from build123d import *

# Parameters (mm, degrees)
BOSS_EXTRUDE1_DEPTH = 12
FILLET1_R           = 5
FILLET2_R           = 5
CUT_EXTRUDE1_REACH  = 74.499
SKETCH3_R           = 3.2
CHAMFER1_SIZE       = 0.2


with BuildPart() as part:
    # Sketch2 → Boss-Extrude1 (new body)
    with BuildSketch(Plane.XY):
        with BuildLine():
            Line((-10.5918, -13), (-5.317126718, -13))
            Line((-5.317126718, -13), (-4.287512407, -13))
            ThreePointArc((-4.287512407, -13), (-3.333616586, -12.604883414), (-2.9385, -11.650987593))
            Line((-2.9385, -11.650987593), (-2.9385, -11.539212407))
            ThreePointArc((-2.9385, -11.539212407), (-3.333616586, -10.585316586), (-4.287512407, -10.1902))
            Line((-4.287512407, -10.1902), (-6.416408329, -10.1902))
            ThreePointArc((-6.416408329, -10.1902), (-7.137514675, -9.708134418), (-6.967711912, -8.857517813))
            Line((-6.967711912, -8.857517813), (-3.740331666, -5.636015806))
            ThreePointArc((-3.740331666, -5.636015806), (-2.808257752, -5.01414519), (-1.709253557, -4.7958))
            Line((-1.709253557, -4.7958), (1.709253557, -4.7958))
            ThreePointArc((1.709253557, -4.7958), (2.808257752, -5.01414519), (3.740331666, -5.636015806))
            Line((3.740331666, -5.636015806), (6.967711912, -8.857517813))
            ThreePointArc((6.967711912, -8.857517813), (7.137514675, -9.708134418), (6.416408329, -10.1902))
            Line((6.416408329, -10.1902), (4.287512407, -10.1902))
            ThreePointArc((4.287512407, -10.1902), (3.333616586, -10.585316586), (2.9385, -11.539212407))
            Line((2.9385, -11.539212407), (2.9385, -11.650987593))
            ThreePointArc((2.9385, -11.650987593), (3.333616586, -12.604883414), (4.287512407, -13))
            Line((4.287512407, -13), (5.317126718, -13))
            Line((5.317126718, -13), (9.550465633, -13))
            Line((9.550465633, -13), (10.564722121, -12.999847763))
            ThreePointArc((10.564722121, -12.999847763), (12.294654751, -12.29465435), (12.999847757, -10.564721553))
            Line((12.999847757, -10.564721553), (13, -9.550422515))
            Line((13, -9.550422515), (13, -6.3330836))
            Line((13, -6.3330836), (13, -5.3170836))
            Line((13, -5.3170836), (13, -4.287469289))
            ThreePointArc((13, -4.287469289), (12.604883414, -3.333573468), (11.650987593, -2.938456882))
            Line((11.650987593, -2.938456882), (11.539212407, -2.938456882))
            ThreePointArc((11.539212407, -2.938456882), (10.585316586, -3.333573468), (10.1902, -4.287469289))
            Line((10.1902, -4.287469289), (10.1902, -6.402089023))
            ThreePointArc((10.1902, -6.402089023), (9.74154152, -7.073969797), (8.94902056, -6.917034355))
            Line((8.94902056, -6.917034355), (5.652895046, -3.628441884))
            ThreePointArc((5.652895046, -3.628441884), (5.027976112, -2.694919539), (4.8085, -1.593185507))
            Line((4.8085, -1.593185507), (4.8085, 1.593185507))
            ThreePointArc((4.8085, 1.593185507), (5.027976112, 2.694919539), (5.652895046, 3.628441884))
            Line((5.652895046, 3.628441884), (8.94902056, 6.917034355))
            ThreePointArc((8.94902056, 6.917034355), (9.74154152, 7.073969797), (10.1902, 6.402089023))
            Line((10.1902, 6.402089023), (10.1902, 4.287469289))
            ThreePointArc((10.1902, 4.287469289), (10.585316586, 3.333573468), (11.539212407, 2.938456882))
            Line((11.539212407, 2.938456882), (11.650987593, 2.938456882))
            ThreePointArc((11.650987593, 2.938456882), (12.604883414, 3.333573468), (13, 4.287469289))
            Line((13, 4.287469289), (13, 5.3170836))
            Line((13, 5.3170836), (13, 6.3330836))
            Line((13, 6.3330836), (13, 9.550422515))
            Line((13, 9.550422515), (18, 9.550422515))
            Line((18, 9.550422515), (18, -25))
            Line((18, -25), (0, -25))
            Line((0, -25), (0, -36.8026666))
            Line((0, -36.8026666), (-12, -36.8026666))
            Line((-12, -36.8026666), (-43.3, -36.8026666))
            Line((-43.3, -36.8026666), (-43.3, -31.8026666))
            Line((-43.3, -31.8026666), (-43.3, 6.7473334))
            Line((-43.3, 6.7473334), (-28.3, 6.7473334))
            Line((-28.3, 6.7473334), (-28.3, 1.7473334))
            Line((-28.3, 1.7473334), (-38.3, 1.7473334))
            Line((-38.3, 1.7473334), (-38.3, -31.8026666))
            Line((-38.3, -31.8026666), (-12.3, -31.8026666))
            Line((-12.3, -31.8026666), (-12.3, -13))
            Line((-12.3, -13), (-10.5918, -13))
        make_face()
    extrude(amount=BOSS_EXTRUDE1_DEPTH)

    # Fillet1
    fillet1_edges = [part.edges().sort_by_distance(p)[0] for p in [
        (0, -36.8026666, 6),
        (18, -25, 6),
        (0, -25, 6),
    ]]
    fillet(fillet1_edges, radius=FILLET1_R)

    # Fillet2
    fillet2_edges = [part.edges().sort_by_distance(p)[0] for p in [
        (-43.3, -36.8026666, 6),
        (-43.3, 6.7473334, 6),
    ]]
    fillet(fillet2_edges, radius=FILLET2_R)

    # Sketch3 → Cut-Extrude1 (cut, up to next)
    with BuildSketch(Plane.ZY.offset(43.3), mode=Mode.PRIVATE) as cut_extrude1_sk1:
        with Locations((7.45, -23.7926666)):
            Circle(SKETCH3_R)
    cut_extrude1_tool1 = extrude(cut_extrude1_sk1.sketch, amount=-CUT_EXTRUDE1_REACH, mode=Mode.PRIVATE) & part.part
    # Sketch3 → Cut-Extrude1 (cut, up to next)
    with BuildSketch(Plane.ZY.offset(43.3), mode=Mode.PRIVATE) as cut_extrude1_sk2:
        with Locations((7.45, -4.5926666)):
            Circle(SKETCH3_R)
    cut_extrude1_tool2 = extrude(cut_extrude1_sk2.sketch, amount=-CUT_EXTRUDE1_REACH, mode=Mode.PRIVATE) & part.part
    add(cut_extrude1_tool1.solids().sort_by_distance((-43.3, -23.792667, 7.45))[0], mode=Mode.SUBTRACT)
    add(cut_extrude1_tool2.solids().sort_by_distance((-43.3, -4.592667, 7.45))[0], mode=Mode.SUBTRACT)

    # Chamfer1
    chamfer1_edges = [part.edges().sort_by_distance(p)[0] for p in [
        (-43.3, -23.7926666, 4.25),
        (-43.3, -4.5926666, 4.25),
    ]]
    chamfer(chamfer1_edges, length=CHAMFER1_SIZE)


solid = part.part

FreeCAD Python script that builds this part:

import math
import FreeCAD as App
import Part
import Sketcher
Q = App.Units.Quantity


def edges_at(feature, points):
    """Names of the edges that pass closest to the given points."""
    edges = feature.Shape.Edges
    near = lambda p: min(range(len(edges)), key=lambda i: edges[i].distToShape(Part.Vertex(*p))[0])
    return sorted({f"Edge{near(p) + 1}" for p in points})

doc = App.newDocument("Part")
params = doc.addObject("Spreadsheet::Sheet", "Params")
for row, (alias, value) in enumerate([
    ("sketch1_width", "26 mm"),
    ("sketch1_width2", "10 mm"),
    ("sketch1_width3", "15 mm"),
    ("sketch1_width4", "18 mm"),
    ("sketch1_width5", "5 mm"),
    ("pad1_length", "12 mm"),
    ("fillet_radius", "5 mm"),
    ("fillet2_radius", "5 mm"),
    ("sketch2_diameter", "6.4 mm"),
    ("sketch3_diameter", "6.4 mm"),
    ("chamfer_size", "0.2 mm"),
], start=1):
    params.set(f"A{row}", alias)
    params.set(f"B{row}", "=" + value)
    params.setAlias(f"B{row}", alias)

body = doc.addObject("PartDesign::Body", "Body")

sketch1 = body.newObject("Sketcher::SketchObject", "Sketch")
sketch1.AttachmentSupport = (doc.getObject("XY_Plane"), [""])
sketch1.MapMode = "FlatFace"
sketch1.addGeometry([
    Part.ArcOfCircle(Part.Circle(App.Vector(-4.287512, -11.650988, 0), App.Vector(0, 0, 1), 1.349012), math.radians(-90), math.radians(0)),
    Part.LineSegment(App.Vector(-4.287512, -13, 0), App.Vector(-12.3, -13, 0)),
    Part.LineSegment(App.Vector(-12.3, -13, 0), App.Vector(-12.3, -31.802667, 0)),
    Part.LineSegment(App.Vector(-12.3, -31.802667, 0), App.Vector(-38.3, -31.802667, 0)),
    Part.LineSegment(App.Vector(-38.3, -31.802667, 0), App.Vector(-38.3, 1.747333, 0)),
    Part.LineSegment(App.Vector(-38.3, 1.747333, 0), App.Vector(-28.3, 1.747333, 0)),
    Part.LineSegment(App.Vector(-28.3, 1.747333, 0), App.Vector(-28.3, 6.747333, 0)),
    Part.LineSegment(App.Vector(-28.3, 6.747333, 0), App.Vector(-43.3, 6.747333, 0)),
    Part.LineSegment(App.Vector(-43.3, 6.747333, 0), App.Vector(-43.3, -36.802667, 0)),
    Part.LineSegment(App.Vector(-43.3, -36.802667, 0), App.Vector(0, -36.802667, 0)),
    Part.LineSegment(App.Vector(0, -36.802667, 0), App.Vector(0, -25, 0)),
    Part.LineSegment(App.Vector(0, -25, 0), App.Vector(18, -25, 0)),
    Part.LineSegment(App.Vector(18, -25, 0), App.Vector(18, 9.550423, 0)),
    Part.LineSegment(App.Vector(18, 9.550423, 0), App.Vector(13, 9.550423, 0)),
    Part.LineSegment(App.Vector(13, 9.550423, 0), App.Vector(13, 4.287469, 0)),
    Part.ArcOfCircle(Part.Circle(App.Vector(11.650988, 4.287469, 0), App.Vector(0, 0, 1), 1.349012), math.radians(-90), math.radians(0)),
    Part.LineSegment(App.Vector(11.650988, 2.938457, 0), App.Vector(11.539212, 2.938457, 0)),
    Part.ArcOfCircle(Part.Circle(App.Vector(11.539212, 4.287469, 0), App.Vector(0, 0, 1), 1.349012), math.radians(180), math.radians(270)),
    Part.LineSegment(App.Vector(10.1902, 4.287469, 0), App.Vector(10.1902, 6.402089, 0)),
    Part.ArcOfCircle(Part.Circle(App.Vector(9.462789, 6.402089, 0), App.Vector(0, 0, 1), 0.727411), math.radians(0), math.radians(134.934453)),
    Part.LineSegment(App.Vector(8.949021, 6.917034, 0), App.Vector(5.652895, 3.628442, 0)),
    Part.ArcOfCircle(Part.Circle(App.Vector(7.6835, 1.593186, 0), App.Vector(0, 0, 1), 2.875), math.radians(134.934453), math.radians(180)),
    Part.LineSegment(App.Vector(4.8085, 1.593186, 0), App.Vector(4.8085, -1.593186, 0)),
    Part.ArcOfCircle(Part.Circle(App.Vector(7.6835, -1.593186, 0), App.Vector(0, 0, 1), 2.875), math.radians(-180), math.radians(-134.934453)),
    Part.LineSegment(App.Vector(5.652895, -3.628442, 0), App.Vector(8.949021, -6.917034, 0)),
    Part.ArcOfCircle(Part.Circle(App.Vector(9.462789, -6.402089, 0), App.Vector(0, 0, 1), 0.727411), math.radians(-134.934453), math.radians(0)),
    Part.LineSegment(App.Vector(10.1902, -6.402089, 0), App.Vector(10.1902, -4.287469, 0)),
    Part.ArcOfCircle(Part.Circle(App.Vector(11.539212, -4.287469, 0), App.Vector(0, 0, 1), 1.349012), math.radians(90), math.radians(180)),
    Part.LineSegment(App.Vector(11.539212, -2.938457, 0), App.Vector(11.650988, -2.938457, 0)),
    Part.ArcOfCircle(Part.Circle(App.Vector(11.650988, -4.287469, 0), App.Vector(0, 0, 1), 1.349012), math.radians(0), math.radians(90)),
    Part.LineSegment(App.Vector(13, -4.287469, 0), App.Vector(13, -9.550423, 0)),
    Part.LineSegment(App.Vector(13, -9.550423, 0), App.Vector(12.999848, -10.564722, 0)),
    Part.ArcOfCircle(Part.Circle(App.Vector(10.5918, -10.5918, 0), App.Vector(0, 0, 1), 2.4082), math.radians(-90.644249), math.radians(0.644263)),
    Part.LineSegment(App.Vector(10.564722, -12.999848, 0), App.Vector(9.550466, -13, 0)),
    Part.LineSegment(App.Vector(9.550466, -13, 0), App.Vector(4.287512, -13, 0)),
    Part.ArcOfCircle(Part.Circle(App.Vector(4.287512, -11.650988, 0), App.Vector(0, 0, 1), 1.349012), math.radians(180), math.radians(270)),
    Part.LineSegment(App.Vector(2.9385, -11.650988, 0), App.Vector(2.9385, -11.539212, 0)),
    Part.ArcOfCircle(Part.Circle(App.Vector(4.287512, -11.539212, 0), App.Vector(0, 0, 1), 1.349012), math.radians(90), math.radians(180)),
    Part.LineSegment(App.Vector(4.287512, -10.1902, 0), App.Vector(6.416408, -10.1902, 0)),
    Part.ArcOfCircle(Part.Circle(App.Vector(6.416408, -9.409827, 0), App.Vector(0, 0, 1), 0.780373), math.radians(-90), math.radians(45.052226)),
    Part.LineSegment(App.Vector(6.967712, -8.857518, 0), App.Vector(3.740332, -5.636016, 0)),
    Part.ArcOfCircle(Part.Circle(App.Vector(1.709254, -7.6708, 0), App.Vector(0, 0, 1), 2.875), math.radians(45.052226), math.radians(90)),
    Part.LineSegment(App.Vector(1.709254, -4.7958, 0), App.Vector(-1.709254, -4.7958, 0)),
    Part.ArcOfCircle(Part.Circle(App.Vector(-1.709254, -7.6708, 0), App.Vector(0, 0, 1), 2.875), math.radians(90), math.radians(134.947774)),
    Part.LineSegment(App.Vector(-3.740332, -5.636016, 0), App.Vector(-6.967712, -8.857518, 0)),
    Part.ArcOfCircle(Part.Circle(App.Vector(-6.416408, -9.409827, 0), App.Vector(0, 0, 1), 0.780373), math.radians(134.947774), math.radians(270)),
    Part.LineSegment(App.Vector(-6.416408, -10.1902, 0), App.Vector(-4.287512, -10.1902, 0)),
    Part.ArcOfCircle(Part.Circle(App.Vector(-4.287512, -11.539212, 0), App.Vector(0, 0, 1), 1.349012), math.radians(0), math.radians(90)),
    Part.LineSegment(App.Vector(-2.9385, -11.539212, 0), App.Vector(-2.9385, -11.650988, 0)),
], False)
sketch1.addConstraint([
    Sketcher.Constraint("Tangent", 0, 1, 1, 1),
    Sketcher.Constraint("Coincident", 1, 2, 2, 1),
    Sketcher.Constraint("Coincident", 2, 2, 3, 1),
    Sketcher.Constraint("Coincident", 3, 2, 4, 1),
    Sketcher.Constraint("Coincident", 4, 2, 5, 1),
    Sketcher.Constraint("Coincident", 5, 2, 6, 1),
    Sketcher.Constraint("Coincident", 6, 2, 7, 1),
    Sketcher.Constraint("Coincident", 7, 2, 8, 1),
    Sketcher.Constraint("Coincident", 8, 2, 9, 1),
    Sketcher.Constraint("Coincident", 9, 2, 10, 1),
    Sketcher.Constraint("Coincident", 10, 2, 11, 1),
    Sketcher.Constraint("Coincident", 11, 2, 12, 1),
    Sketcher.Constraint("Coincident", 12, 2, 13, 1),
    Sketcher.Constraint("Coincident", 13, 2, 14, 1),
    Sketcher.Constraint("Tangent", 14, 2, 15, 2),
    Sketcher.Constraint("Tangent", 15, 1, 16, 1),
    Sketcher.Constraint("Tangent", 16, 2, 17, 2),
    Sketcher.Constraint("Tangent", 17, 1, 18, 1),
    Sketcher.Constraint("Tangent", 18, 2, 19, 1),
    Sketcher.Constraint("Tangent", 19, 2, 20, 1),
    Sketcher.Constraint("Tangent", 20, 2, 21, 1),
    Sketcher.Constraint("Tangent", 21, 2, 22, 1),
    Sketcher.Constraint("Tangent", 22, 2, 23, 1),
    Sketcher.Constraint("Tangent", 23, 2, 24, 1),
    Sketcher.Constraint("Tangent", 24, 2, 25, 1),
    Sketcher.Constraint("Tangent", 25, 2, 26, 1),
    Sketcher.Constraint("Tangent", 26, 2, 27, 2),
    Sketcher.Constraint("Tangent", 27, 1, 28, 1),
    Sketcher.Constraint("Tangent", 28, 2, 29, 2),
    Sketcher.Constraint("Tangent", 29, 1, 30, 1),
    Sketcher.Constraint("Coincident", 30, 2, 31, 1),
    Sketcher.Constraint("Coincident", 31, 2, 32, 2),
    Sketcher.Constraint("Coincident", 32, 1, 33, 1),
    Sketcher.Constraint("Coincident", 33, 2, 34, 1),
    Sketcher.Constraint("Tangent", 34, 2, 35, 2),
    Sketcher.Constraint("Tangent", 35, 1, 36, 1),
    Sketcher.Constraint("Tangent", 36, 2, 37, 2),
    Sketcher.Constraint("Tangent", 37, 1, 38, 1),
    Sketcher.Constraint("Tangent", 38, 2, 39, 1),
    Sketcher.Constraint("Tangent", 39, 2, 40, 1),
    Sketcher.Constraint("Tangent", 40, 2, 41, 1),
    Sketcher.Constraint("Tangent", 41, 2, 42, 1),
    Sketcher.Constraint("Tangent", 42, 2, 43, 1),
    Sketcher.Constraint("Tangent", 43, 2, 44, 1),
    Sketcher.Constraint("Tangent", 44, 2, 45, 1),
    Sketcher.Constraint("Tangent", 45, 2, 46, 1),
    Sketcher.Constraint("Tangent", 46, 2, 47, 2),
    Sketcher.Constraint("Tangent", 47, 1, 48, 1),
    Sketcher.Constraint("Tangent", 48, 2, 0, 2),
    Sketcher.Constraint("Horizontal", 1),
    Sketcher.Constraint("Vertical", 2),
    Sketcher.Constraint("Horizontal", 3),
    Sketcher.Constraint("Vertical", 4),
    Sketcher.Constraint("Horizontal", 5),
    Sketcher.Constraint("Vertical", 6),
    Sketcher.Constraint("Horizontal", 7),
    Sketcher.Constraint("Vertical", 8),
    Sketcher.Constraint("Horizontal", 9),
    Sketcher.Constraint("Vertical", 10),
    Sketcher.Constraint("Horizontal", 11),
    Sketcher.Constraint("Vertical", 12),
    Sketcher.Constraint("Horizontal", 13),
    Sketcher.Constraint("Vertical", 14),
    Sketcher.Constraint("Horizontal", 16),
    Sketcher.Constraint("Vertical", 18),
    Sketcher.Constraint("Vertical", 22),
    Sketcher.Constraint("Vertical", 26),
    Sketcher.Constraint("Horizontal", 28),
    Sketcher.Constraint("Vertical", 30),
    Sketcher.Constraint("Horizontal", 34),
    Sketcher.Constraint("Vertical", 36),
    Sketcher.Constraint("Horizontal", 38),
    Sketcher.Constraint("Horizontal", 42),
    Sketcher.Constraint("Horizontal", 46),
    Sketcher.Constraint("Vertical", 48),
    Sketcher.Constraint("Equal", 0, 15),
    Sketcher.Constraint("Equal", 15, 17),
    Sketcher.Constraint("Equal", 21, 23),
    Sketcher.Constraint("Equal", 19, 25),
    Sketcher.Constraint("Equal", 17, 27),
    Sketcher.Constraint("Equal", 27, 29),
    Sketcher.Constraint("Equal", 29, 35),
    Sketcher.Constraint("Equal", 35, 37),
    Sketcher.Constraint("Equal", 23, 41),
    Sketcher.Constraint("Equal", 41, 43),
    Sketcher.Constraint("Equal", 39, 45),
    Sketcher.Constraint("Equal", 37, 47),
    Sketcher.Constraint("Symmetric", 0, 3, 35, 3, -2),
    Sketcher.Constraint("Symmetric", 39, 3, 45, 3, -2),
    Sketcher.Constraint("Symmetric", 19, 3, 25, 3, -1),
    Sketcher.Constraint("Symmetric", 15, 3, 29, 3, -1),
    Sketcher.Constraint("PointOnObject", 9, 2, -2),
    Sketcher.Constraint("Horizontal", 40, 2, 43, 2),
    Sketcher.Constraint("Vertical", 20, 2, 23, 2),
    Sketcher.Constraint("Equal", 13, 6),
    Sketcher.Constraint("Equal", 34, 14),
    Sketcher.Constraint("Equal", 14, 30),
    Sketcher.Constraint("Equal", 28, 36),
    Sketcher.Constraint("DistanceX", 3, 2, 3, 1, Q("26 mm")),
    Sketcher.Constraint("DistanceX", 5, 1, 5, 2, Q("10 mm")),
    Sketcher.Constraint("DistanceX", 7, 2, 7, 1, Q("15 mm")),
    Sketcher.Constraint("DistanceX", 11, 1, 11, 2, Q("18 mm")),
    Sketcher.Constraint("DistanceX", 13, 2, 13, 1, Q("5 mm")),
    Sketcher.Constraint("DistanceX", 9, 1, 9, 2, Q("43.3 mm")),
    Sketcher.Constraint("DistanceY", 0, 1, -1, 1, Q("13 mm")),
    Sketcher.Constraint("DistanceY", 10, 2, -1, 1, Q("25 mm")),
    Sketcher.Constraint("Radius", 21, Q("2.875 mm")),
    Sketcher.Constraint("DistanceY", 4, 1, 4, 2, Q("33.55 mm")),
    Sketcher.Constraint("DistanceY", 8, 2, 8, 1, Q("43.55 mm")),
    Sketcher.Constraint("Radius", 32, Q("2.4082 mm")),
    Sketcher.Constraint("Radius", 19, Q("0.727411 mm")),
    Sketcher.Constraint("Radius", 0, Q("1.349012 mm")),
    Sketcher.Constraint("Radius", 39, Q("0.780373 mm")),
    Sketcher.Constraint("Distance", 20, Q("4.656102 mm")),
    Sketcher.Constraint("Distance", 31, Q("1.014299 mm")),
    Sketcher.Constraint("DistanceY", 18, 1, 18, 2, Q("2.11462 mm")),
    Sketcher.Constraint("DistanceY", 22, 2, 22, 1, Q("3.186371 mm")),
    Sketcher.Constraint("DistanceX", -1, 1, 21, 3, Q("7.6835 mm")),
    Sketcher.Constraint("DistanceX", -1, 1, 32, 3, Q("10.5918 mm")),
    Sketcher.Constraint("DistanceY", 32, 3, -1, 1, Q("10.5918 mm")),
    Sketcher.Constraint("DistanceY", 41, 3, -1, 1, Q("7.6708 mm")),
    Sketcher.Constraint("DistanceX", -1, 1, 17, 1, Q("10.1902 mm")),
    Sketcher.Constraint("DistanceX", -1, 1, 35, 1, Q("2.9385 mm")),
    Sketcher.Constraint("Distance", 40, Q("4.56005 mm")),
    Sketcher.Constraint("DistanceX", 34, 2, 34, 1, Q("5.262953 mm")),
    Sketcher.Constraint("DistanceX", 38, 1, 38, 2, Q("2.128896 mm")),
    Sketcher.Constraint("DistanceY", 2, 2, 2, 1, Q("18.802667 mm")),
    Sketcher.Constraint("Distance", 33, Q("1.014256 mm")),
])
sketch1.setExpression("Constraints[98]", "Params.sketch1_width")
sketch1.setExpression("Constraints[99]", "Params.sketch1_width2")
sketch1.setExpression("Constraints[100]", "Params.sketch1_width3")
sketch1.setExpression("Constraints[101]", "Params.sketch1_width4")
sketch1.setExpression("Constraints[102]", "Params.sketch1_width5")
pad1 = body.newObject("PartDesign::Pad", "Pad")
pad1.Profile = sketch1
pad1.setExpression("Length", "Params.pad1_length")
doc.recompute()

fillet = body.newObject("PartDesign::Fillet", "Fillet")
fillet.Base = (pad1, edges_at(pad1, [(0, -36.803, 6), (18, -25, 6), (0, -25, 6)]))
fillet.setExpression("Radius", "Params.fillet_radius")
doc.recompute()

fillet2 = body.newObject("PartDesign::Fillet", "Fillet001")
fillet2.Base = (fillet, edges_at(fillet, [(-43.3, -36.803, 6), (-43.3, 6.747, 6)]))
fillet2.setExpression("Radius", "Params.fillet2_radius")

sketch2 = body.newObject("Sketcher::SketchObject", "Sketch001")
sketch2.AttachmentSupport = (doc.getObject("YZ_Plane"), [""])
sketch2.MapMode = "FlatFace"
sketch2.AttachmentOffset = App.Placement(App.Vector(0, 0, -43.3), App.Rotation())
sketch2.addGeometry(Part.Circle(App.Vector(-23.792667, 7.45, 0), App.Vector(0, 0, 1), 3.2), False)
sketch2.addConstraint([
    Sketcher.Constraint("Diameter", 0, Q("6.4 mm")),
    Sketcher.Constraint("DistanceY", -1, 1, 0, 3, Q("7.45 mm")),
    Sketcher.Constraint("DistanceX", 0, 3, -1, 1, Q("23.792667 mm")),
])
sketch2.setExpression("Constraints[0]", "Params.sketch2_diameter")
pocket1 = body.newObject("PartDesign::Pocket", "Pocket")
pocket1.Profile = sketch2
pocket1.Type = "UpToFirst"
pocket1.Reversed = True

sketch3 = body.newObject("Sketcher::SketchObject", "Sketch002")
sketch3.AttachmentSupport = (doc.getObject("YZ_Plane"), [""])
sketch3.MapMode = "FlatFace"
sketch3.AttachmentOffset = App.Placement(App.Vector(0, 0, -43.3), App.Rotation())
sketch3.addGeometry(Part.Circle(App.Vector(-4.592667, 7.45, 0), App.Vector(0, 0, 1), 3.2), False)
sketch3.addConstraint([
    Sketcher.Constraint("Diameter", 0, Q("6.4 mm")),
    Sketcher.Constraint("DistanceY", -1, 1, 0, 3, Q("7.45 mm")),
    Sketcher.Constraint("DistanceX", 0, 3, -1, 1, Q("4.592667 mm")),
])
sketch3.setExpression("Constraints[0]", "Params.sketch3_diameter")
pocket2 = body.newObject("PartDesign::Pocket", "Pocket001")
pocket2.Profile = sketch3
pocket2.Type = "UpToFirst"
pocket2.Reversed = True
doc.recompute()

chamfer = body.newObject("PartDesign::Chamfer", "Chamfer")
chamfer.Base = (pocket2, edges_at(pocket2, [(-43.3, -23.793, 4.25), (-43.3, -4.593, 4.25)]))
chamfer.setExpression("Size", "Params.chamfer_size")

doc.recompute()
